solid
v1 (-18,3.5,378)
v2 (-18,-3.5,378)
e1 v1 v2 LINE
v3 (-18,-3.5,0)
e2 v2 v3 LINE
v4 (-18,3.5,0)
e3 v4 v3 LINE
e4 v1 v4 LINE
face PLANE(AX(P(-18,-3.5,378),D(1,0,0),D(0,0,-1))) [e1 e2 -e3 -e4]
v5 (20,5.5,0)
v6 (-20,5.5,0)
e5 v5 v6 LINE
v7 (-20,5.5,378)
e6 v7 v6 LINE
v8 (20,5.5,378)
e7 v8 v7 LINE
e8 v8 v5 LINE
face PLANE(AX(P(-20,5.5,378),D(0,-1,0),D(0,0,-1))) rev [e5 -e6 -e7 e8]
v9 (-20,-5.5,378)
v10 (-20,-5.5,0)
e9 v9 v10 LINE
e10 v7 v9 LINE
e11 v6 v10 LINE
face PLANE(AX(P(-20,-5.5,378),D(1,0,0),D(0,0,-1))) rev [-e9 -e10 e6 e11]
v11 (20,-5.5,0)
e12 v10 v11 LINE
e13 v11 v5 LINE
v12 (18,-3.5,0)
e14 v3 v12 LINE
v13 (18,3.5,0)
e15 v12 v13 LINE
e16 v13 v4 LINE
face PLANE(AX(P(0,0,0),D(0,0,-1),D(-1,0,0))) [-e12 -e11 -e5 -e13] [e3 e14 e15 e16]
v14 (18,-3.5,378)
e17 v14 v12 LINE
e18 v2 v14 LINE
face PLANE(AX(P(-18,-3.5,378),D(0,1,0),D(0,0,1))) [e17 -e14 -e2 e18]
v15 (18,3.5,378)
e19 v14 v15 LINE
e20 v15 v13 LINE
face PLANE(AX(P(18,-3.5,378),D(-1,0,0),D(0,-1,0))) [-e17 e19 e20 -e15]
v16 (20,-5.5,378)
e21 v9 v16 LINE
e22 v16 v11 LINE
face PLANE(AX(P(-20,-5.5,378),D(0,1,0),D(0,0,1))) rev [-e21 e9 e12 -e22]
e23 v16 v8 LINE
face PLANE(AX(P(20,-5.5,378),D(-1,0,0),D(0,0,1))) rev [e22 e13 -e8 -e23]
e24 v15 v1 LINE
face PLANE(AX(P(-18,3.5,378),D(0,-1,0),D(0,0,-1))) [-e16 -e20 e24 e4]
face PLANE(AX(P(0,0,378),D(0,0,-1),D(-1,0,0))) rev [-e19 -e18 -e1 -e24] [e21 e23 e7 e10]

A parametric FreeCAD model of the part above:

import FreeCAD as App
import Part
import Sketcher

V = App.Vector


def add_polygon(sketch, points):
    """Adds a closed chain of lines whose ends are joined by coincident constraints."""
    first, n = sketch.GeometryCount, len(points)
    for a, b in zip(points, points[1:] + points[:1]):
        sketch.addGeometry(Part.LineSegment(App.Vector(*a, 0), App.Vector(*b, 0)), False)
    for i in range(n):
        sketch.addConstraint(Sketcher.Constraint("Coincident", first + i, 2, first + (i + 1) % n, 1))

doc = App.newDocument("Part")
body = doc.addObject("PartDesign::Body", "Body")

# Sketch on XY plane
sketch1 = body.newObject("Sketcher::SketchObject", "Sketch")
sketch1.AttachmentSupport = (doc.getObject("XY_Plane"), [""])
sketch1.MapMode = "FlatFace"
add_polygon(sketch1, [(-20, 6), (-20, -6), (20, -6), (20, 6)])  # lines 0-3
add_polygon(sketch1, [(18, -4), (-18, -4), (-18, 4), (18, 4)])  # lines 4-7
sketch1.addConstraint(Sketcher.Constraint("Vertical", 0))
sketch1.addConstraint(Sketcher.Constraint("Horizontal", 1))
sketch1.addConstraint(Sketcher.Constraint("Vertical", 2))
sketch1.addConstraint(Sketcher.Constraint("Horizontal", 3))
sketch1.addConstraint(Sketcher.Constraint("Horizontal", 4))
sketch1.addConstraint(Sketcher.Constraint("Vertical", 5))
sketch1.addConstraint(Sketcher.Constraint("Horizontal", 6))
sketch1.addConstraint(Sketcher.Constraint("Vertical", 7))
sketch1.addConstraint(Sketcher.Constraint("Symmetric", 0, 2, 2, 2, -1, 1))
sketch1.addConstraint(Sketcher.Constraint("Symmetric", 4, 2, 6, 2, -1, 1))
sketch1.addConstraint(Sketcher.Constraint("DistanceX", 1, 1, 1, 2, 40.0))
sketch1.addConstraint(Sketcher.Constraint("DistanceX", 4, 2, 4, 1, 36.0))
sketch1.addConstraint(Sketcher.Constraint("DistanceY", 0, 2, 0, 1, 11.0))
sketch1.addConstraint(Sketcher.Constraint("DistanceY", 5, 1, 5, 2, 7.0))
pad1 = body.newObject("PartDesign::Pad", "Pad")
pad1.Profile = sketch1
pad1.Length = 378

doc.recompute()
